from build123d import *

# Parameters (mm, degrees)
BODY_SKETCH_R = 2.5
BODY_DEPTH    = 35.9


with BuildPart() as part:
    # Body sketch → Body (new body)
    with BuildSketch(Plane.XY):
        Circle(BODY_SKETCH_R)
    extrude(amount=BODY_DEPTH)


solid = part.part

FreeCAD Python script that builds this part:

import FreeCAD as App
import Part
import Sketcher

doc = App.newDocument("Part")
body = doc.addObject("PartDesign::Body", "Body")

sketch1 = body.newObject("Sketcher::SketchObject", "Sketch")
sketch1.AttachmentSupport = (doc.getObject("XY_Plane"), [""])
sketch1.MapMode = "FlatFace"
sketch1.addGeometry(Part.Circle(App.Vector(0, 0, 0), App.Vector(0, 0, 1), 2.5), False)
sketch1.addConstraint([
    Sketcher.Constraint("Coincident", 0, 3, -1, 1),
    Sketcher.Constraint("Diameter", 0, 5.0),
])
pad1 = body.newObject("PartDesign::Pad", "Pad")
pad1.Profile = sketch1
pad1.Length = 35.9

doc.recompute()
